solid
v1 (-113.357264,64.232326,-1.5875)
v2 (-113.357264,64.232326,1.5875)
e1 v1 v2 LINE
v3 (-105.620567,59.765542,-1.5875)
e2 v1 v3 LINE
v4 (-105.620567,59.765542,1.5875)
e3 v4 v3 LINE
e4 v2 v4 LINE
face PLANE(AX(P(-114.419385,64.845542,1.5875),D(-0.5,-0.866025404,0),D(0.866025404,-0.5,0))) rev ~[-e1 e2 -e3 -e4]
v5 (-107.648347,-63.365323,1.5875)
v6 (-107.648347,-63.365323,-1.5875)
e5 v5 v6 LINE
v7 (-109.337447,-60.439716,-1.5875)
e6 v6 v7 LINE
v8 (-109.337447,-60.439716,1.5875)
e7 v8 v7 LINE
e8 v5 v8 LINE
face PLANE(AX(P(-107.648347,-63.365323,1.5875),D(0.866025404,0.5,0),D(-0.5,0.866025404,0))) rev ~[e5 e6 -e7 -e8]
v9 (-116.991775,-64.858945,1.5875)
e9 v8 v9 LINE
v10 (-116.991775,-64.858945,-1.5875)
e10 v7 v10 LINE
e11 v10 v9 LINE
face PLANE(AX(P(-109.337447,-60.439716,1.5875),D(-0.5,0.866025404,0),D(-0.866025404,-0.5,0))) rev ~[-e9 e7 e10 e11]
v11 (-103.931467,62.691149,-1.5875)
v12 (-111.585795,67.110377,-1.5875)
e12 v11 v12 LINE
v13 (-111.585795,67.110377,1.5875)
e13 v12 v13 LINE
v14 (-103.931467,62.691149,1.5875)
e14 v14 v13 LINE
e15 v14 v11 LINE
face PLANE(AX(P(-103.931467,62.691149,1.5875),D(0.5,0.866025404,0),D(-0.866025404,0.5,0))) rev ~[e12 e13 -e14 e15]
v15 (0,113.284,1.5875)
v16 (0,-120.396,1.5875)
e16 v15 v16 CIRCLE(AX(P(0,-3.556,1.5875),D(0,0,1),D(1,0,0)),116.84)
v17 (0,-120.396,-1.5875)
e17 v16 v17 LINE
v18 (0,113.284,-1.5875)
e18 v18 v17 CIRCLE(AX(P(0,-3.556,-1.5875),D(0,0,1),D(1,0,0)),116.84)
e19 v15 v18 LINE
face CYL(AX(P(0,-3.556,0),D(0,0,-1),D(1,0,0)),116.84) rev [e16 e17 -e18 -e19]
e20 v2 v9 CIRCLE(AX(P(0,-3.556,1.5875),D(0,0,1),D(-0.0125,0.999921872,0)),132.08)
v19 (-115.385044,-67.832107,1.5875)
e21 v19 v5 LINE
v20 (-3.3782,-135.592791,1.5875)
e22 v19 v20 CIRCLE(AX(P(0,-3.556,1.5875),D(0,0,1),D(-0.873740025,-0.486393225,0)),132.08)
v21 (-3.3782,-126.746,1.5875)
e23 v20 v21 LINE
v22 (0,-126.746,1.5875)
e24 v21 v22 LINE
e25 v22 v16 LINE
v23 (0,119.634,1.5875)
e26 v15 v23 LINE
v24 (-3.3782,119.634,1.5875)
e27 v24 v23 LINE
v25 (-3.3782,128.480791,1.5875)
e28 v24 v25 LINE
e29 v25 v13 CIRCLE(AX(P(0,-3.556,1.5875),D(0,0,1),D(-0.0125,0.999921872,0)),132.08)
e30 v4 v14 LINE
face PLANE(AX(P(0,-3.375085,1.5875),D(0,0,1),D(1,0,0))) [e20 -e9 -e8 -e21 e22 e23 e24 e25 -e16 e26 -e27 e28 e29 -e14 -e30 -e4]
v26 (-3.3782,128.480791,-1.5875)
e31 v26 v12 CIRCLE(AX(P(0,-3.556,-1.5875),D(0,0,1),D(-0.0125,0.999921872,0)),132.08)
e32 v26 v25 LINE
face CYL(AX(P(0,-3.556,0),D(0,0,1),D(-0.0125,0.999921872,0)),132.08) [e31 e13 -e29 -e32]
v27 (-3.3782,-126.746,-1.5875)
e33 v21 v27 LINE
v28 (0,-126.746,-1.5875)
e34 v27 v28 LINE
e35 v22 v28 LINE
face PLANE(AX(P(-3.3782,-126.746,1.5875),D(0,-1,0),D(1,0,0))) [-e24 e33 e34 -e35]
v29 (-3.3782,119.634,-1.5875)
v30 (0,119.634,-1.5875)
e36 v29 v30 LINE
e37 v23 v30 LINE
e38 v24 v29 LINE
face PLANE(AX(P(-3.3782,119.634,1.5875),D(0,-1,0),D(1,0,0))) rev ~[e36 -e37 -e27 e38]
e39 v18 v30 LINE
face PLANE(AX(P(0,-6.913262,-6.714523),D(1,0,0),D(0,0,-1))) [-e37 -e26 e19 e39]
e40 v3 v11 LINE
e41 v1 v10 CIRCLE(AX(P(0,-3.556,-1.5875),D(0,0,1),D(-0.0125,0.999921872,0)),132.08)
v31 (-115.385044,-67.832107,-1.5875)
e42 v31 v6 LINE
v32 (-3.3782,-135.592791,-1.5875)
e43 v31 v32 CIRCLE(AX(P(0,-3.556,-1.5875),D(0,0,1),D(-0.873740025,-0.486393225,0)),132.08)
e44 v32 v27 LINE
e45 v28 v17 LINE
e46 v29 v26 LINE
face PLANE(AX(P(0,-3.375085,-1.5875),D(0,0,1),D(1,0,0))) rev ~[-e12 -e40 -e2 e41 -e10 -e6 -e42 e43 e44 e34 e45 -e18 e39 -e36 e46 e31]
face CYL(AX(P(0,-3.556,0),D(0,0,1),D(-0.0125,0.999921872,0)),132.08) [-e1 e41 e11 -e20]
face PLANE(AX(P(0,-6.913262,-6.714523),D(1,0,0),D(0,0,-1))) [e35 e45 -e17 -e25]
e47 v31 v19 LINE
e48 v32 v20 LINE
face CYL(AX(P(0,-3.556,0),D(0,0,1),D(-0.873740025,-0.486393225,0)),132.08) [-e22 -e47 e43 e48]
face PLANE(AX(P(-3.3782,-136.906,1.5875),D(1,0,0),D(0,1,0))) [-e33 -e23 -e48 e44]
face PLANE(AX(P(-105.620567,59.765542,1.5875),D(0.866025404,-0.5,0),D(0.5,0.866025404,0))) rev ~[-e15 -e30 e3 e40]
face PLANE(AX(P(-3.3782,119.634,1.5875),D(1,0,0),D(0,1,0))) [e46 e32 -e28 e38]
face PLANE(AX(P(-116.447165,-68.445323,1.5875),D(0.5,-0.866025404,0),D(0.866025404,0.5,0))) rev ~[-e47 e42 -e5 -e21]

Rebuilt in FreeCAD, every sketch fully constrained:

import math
import FreeCAD as App
import Part
import Sketcher

V = App.Vector
Q = App.Units.Quantity

doc = App.newDocument("Part")
body = doc.addObject("PartDesign::Body", "Body")

sketch1 = body.newObject("Sketcher::SketchObject", "Sketch")
sketch1.AttachmentSupport = (doc.getObject("XY_Plane"), [""])
sketch1.MapMode = "FlatFace"
sketch1.addGeometry([
    Part.ArcOfCircle(Part.Circle(V(0, -3.556, 0), V(0, 0, 1), 132.08), math.radians(90.716216), math.radians(207.670794)),
    Part.ArcOfCircle(Part.Circle(V(0.000013, -3.555993, 0), V(0, 0, 1), 132.080014), math.radians(-152.329206), math.radians(-151.612581)),
    Part.ArcOfCircle(Part.Circle(V(0.000026, -3.555986, 0), V(0, 0, 1), 132.08003), math.radians(-151.61258), math.radians(-150.896207)),
    Part.ArcOfCircle(Part.Circle(V(0, -3.556, 0), V(0, 0, 1), 132.08), math.radians(-150.896207), math.radians(-29.103793)),
    Part.ArcOfCircle(Part.Circle(V(-0.000007, -3.555996, 0), V(0, 0, 1), 132.080008), math.radians(-29.103793), math.radians(-28.387419)),
    Part.ArcOfCircle(Part.Circle(V(-0.00001, -3.555995, 0), V(0, 0, 1), 132.080012), math.radians(-28.387419), math.radians(-27.670794)),
    Part.ArcOfCircle(Part.Circle(V(0, -3.556, 0), V(0, 0, 1), 132.08), math.radians(-27.670794), math.radians(89.283784)),
    Part.ArcOfCircle(Part.Circle(V(0, -3.555979, 0), V(0, 0, 1), 132.079979), math.radians(89.283784), math.radians(90)),
    Part.ArcOfCircle(Part.Circle(V(0, -3.555979, 0), V(0, 0, 1), 132.079979), math.radians(90), math.radians(90.716216)),
    Part.Circle(V(0, -3.556, 0), V(0, 0, 1), 116.84),
], False)
sketch1.addConstraint([
    Sketcher.Constraint("Coincident", 0, 2, 1, 1),
    Sketcher.Constraint("Coincident", 1, 2, 2, 1),
    Sketcher.Constraint("Coincident", 2, 2, 3, 1),
    Sketcher.Constraint("Coincident", 3, 2, 4, 1),
    Sketcher.Constraint("Coincident", 4, 2, 5, 1),
    Sketcher.Constraint("Coincident", 5, 2, 6, 1),
    Sketcher.Constraint("Coincident", 6, 2, 7, 1),
    Sketcher.Constraint("Coincident", 7, 2, 8, 1),
    Sketcher.Constraint("Coincident", 8, 2, 0, 1),
    Sketcher.Constraint("Coincident", 3, 3, 0, 3),
    Sketcher.Constraint("Coincident", 4, 3, 0, 3),
    Sketcher.Constraint("Coincident", 5, 3, 4, 3),
    Sketcher.Constraint("Coincident", 6, 3, 0, 3),
    Sketcher.Constraint("Coincident", 8, 3, 7, 3),
    Sketcher.Constraint("Coincident", 9, 3, 0, 3),
    Sketcher.Constraint("PointOnObject", 0, 3, -2),
    Sketcher.Constraint("PointOnObject", 7, 3, -2),
    Sketcher.Constraint("PointOnObject", 7, 2, -2),
    Sketcher.Constraint("Diameter", 9, Q("9.2 in")),
    Sketcher.Constraint("Radius", 0, Q("5.2 in")),
    Sketcher.Constraint("DistanceY", 0, 3, -1, 1, Q("0.14 in")),
    Sketcher.Constraint("DistanceX", 8, 2, 6, 2, Q("0.13 in")),
    Sketcher.Constraint("DistanceX", -1, 1, 6, 2, Q("0.065 in")),
    Sketcher.Constraint("Radius", 2, 132.08003),
    Sketcher.Constraint("Radius", 7, 132.079979),
    Sketcher.Constraint("Radius", 1, 132.080014),
    Sketcher.Constraint("DistanceY", 2, 2, 0, 2, 2.906099),
    Sketcher.Constraint("DistanceY", 3, 2, 5, 2, 2.906099),
    Sketcher.Constraint("DistanceX", 0, 2, -1, 1, 116.974071),
    Sketcher.Constraint("DistanceX", -1, 1, 5, 2, 116.974071),
    Sketcher.Constraint("DistanceY", 1, 2, 5, 3, 62.794939),
    Sketcher.Constraint("DistanceY", 3, 2, 2, 3, 64.242832),
    Sketcher.Constraint("DistanceX", 2, 3, 4, 2, 116.197748),
])
pad1 = body.newObject("PartDesign::Pad", "Pad")
pad1.Profile = sketch1
pad1.Length = Q("0.125 in")
pad1.Midplane = True

sketch2 = body.newObject("Sketcher::SketchObject", "Sketch001")
sketch2.AttachmentSupport = (doc.getObject("YZ_Plane"), [""])
sketch2.MapMode = "FlatFace"
sketch2.addGeometry([
    Part.LineSegment(V(193, 109, 0), V(-206, 109, 0)),
    Part.LineSegment(V(-206, 109, 0), V(-206, -123, 0)),
    Part.LineSegment(V(-206, -123, 0), V(193, -123, 0)),
    Part.LineSegment(V(193, -123, 0), V(193, 109, 0)),
], False)
sketch2.addConstraint([
    Sketcher.Constraint("Coincident", 0, 2, 1, 1),
    Sketcher.Constraint("Coincident", 1, 2, 2, 1),
    Sketcher.Constraint("Coincident", 2, 2, 3, 1),
    Sketcher.Constraint("Coincident", 3, 2, 0, 1),
    Sketcher.Constraint("Horizontal", 0),
    Sketcher.Constraint("Vertical", 1),
    Sketcher.Constraint("Horizontal", 2),
    Sketcher.Constraint("Vertical", 3),
    Sketcher.Constraint("DistanceX", 0, 2, 0, 1, 398.954584),
    Sketcher.Constraint("DistanceY", 1, 2, 1, 1, 232.210592),
    Sketcher.Constraint("DistanceY", 1, 2, -1, 1, 122.819819),
    Sketcher.Constraint("DistanceX", -1, 1, 2, 2, 192.56403),
])
pocket1 = body.newObject("PartDesign::Pocket", "Pocket")
pocket1.Profile = sketch2
pocket1.Type = "ThroughAll"
pocket1.Reversed = True

sketch3 = body.newObject("Sketcher::SketchObject", "Sketch002")
sketch3.AttachmentSupport = (doc.getObject("XY_Plane"), [""])
sketch3.MapMode = "FlatFace"
sketch3.AttachmentOffset = App.Placement(V(0, 0, 0.0625 * 25.4), App.Rotation())
sketch3.addGeometry([
    Part.LineSegment(V(-3.4, 129.8, 0), V(-3.4, 119.6, 0)),
    Part.LineSegment(V(-3.4, 119.6, 0), V(0, 119.6, 0)),
    Part.LineSegment(V(0, 119.6, 0), V(0, 129.8, 0)),
    Part.LineSegment(V(0, 129.8, 0), V(-3.4, 129.8, 0)),
    Part.LineSegment(V(-105.6, 59.8, 0), V(-103.9, 62.7, 0)),
    Part.LineSegment(V(-103.9, 62.7, 0), V(-112.7, 67.8, 0)),
    Part.LineSegment(V(-112.7, 67.8, 0), V(-114.4, 64.8, 0)),
    Part.LineSegment(V(-114.4, 64.8, 0), V(-105.6, 59.8, 0)),
    Part.LineSegment(V(-3.4, -126.7, 0), V(-3.4, -136.9, 0)),
    Part.LineSegment(V(-3.4, -136.9, 0), V(0, -136.9, 0)),
    Part.LineSegment(V(0, -136.9, 0), V(0, -126.7, 0)),
    Part.LineSegment(V(0, -126.7, 0), V(-3.4, -126.7, 0)),
    Part.LineSegment(V(-107.6, -63.4, 0), V(-109.3, -60.4, 0)),
    Part.LineSegment(V(-109.3, -60.4, 0), V(-118.1, -65.5, 0)),
    Part.LineSegment(V(-118.1, -65.5, 0), V(-116.4, -68.4, 0)),
    Part.LineSegment(V(-116.4, -68.4, 0), V(-107.6, -63.4, 0)),
], False)
sketch3.addConstraint([
    Sketcher.Constraint("Coincident", 0, 2, 1, 1),
    Sketcher.Constraint("Coincident", 1, 2, 2, 1),
    Sketcher.Constraint("Coincident", 2, 2, 3, 1),
    Sketcher.Constraint("Coincident", 3, 2, 0, 1),
    Sketcher.Constraint("Coincident", 4, 2, 5, 1),
    Sketcher.Constraint("Coincident", 5, 2, 6, 1),
    Sketcher.Constraint("Coincident", 6, 2, 7, 1),
    Sketcher.Constraint("Coincident", 7, 2, 4, 1),
    Sketcher.Constraint("Coincident", 8, 2, 9, 1),
    Sketcher.Constraint("Coincident", 9, 2, 10, 1),
    Sketcher.Constraint("Coincident", 10, 2, 11, 1),
    Sketcher.Constraint("Coincident", 11, 2, 8, 1),
    Sketcher.Constraint("Coincident", 12, 2, 13, 1),
    Sketcher.Constraint("Coincident", 13, 2, 14, 1),
    Sketcher.Constraint("Coincident", 14, 2, 15, 1),
    Sketcher.Constraint("Coincident", 15, 2, 12, 1),
    Sketcher.Constraint("Vertical", 0),
    Sketcher.Constraint("Horizontal", 1),
    Sketcher.Constraint("Vertical", 2),
    Sketcher.Constraint("Horizontal", 3),
    Sketcher.Constraint("Vertical", 8),
    Sketcher.Constraint("Horizontal", 9),
    Sketcher.Constraint("Vertical", 10),
    Sketcher.Constraint("Horizontal", 11),
    Sketcher.Constraint("PointOnObject", 1, 2, -2),
    Sketcher.Constraint("PointOnObject", 9, 2, -2),
    Sketcher.Constraint("Perpendicular", 4, 5),
    Sketcher.Constraint("Perpendicular", 5, 6),
    Sketcher.Constraint("Perpendicular", 6, 7),
    Sketcher.Constraint("Perpendicular", 12, 13),
    Sketcher.Constraint("Perpendicular", 13, 14),
    Sketcher.Constraint("Perpendicular", 14, 15),
    Sketcher.Constraint("Vertical", 3, 2, 8, 2),
    Sketcher.Constraint("Equal", 2, 8),
    Sketcher.Constraint("Equal", 6, 12),
    Sketcher.Constraint("Equal", 7, 13),
    Sketcher.Constraint("DistanceY", 0, 2, 0, 1, Q("0.4 in")),
    Sketcher.Constraint("Angle", 4, Q("60 deg")),
    Sketcher.Constraint("Angle", 12, Q("120 deg")),
    Sketcher.Constraint("Distance", 5, Q("0.4 in")),
    Sketcher.Constraint("DistanceY", 8, 2, 0, 2, Q("10.1 in")),
    Sketcher.Constraint("DistanceX", 1, 1, 1, 2, Q("0.133 in")),
    Sketcher.Constraint("DistanceY", -1, 1, 0, 2, Q("4.71 in")),
    Sketcher.Constraint("Distance", 4, Q("0.133 in")),
    Sketcher.Constraint("DistanceX", 5, 2, -1, 1, Q("4.4382002 in")),
    Sketcher.Constraint("DistanceX", 13, 2, 7, 2, 12.515698),
    Sketcher.Constraint("DistanceY", -1, 1, 4, 2, 62.691149),
    Sketcher.Constraint("DistanceY", 12, 2, -1, 1, 60.439716),
])
pocket2 = body.newObject("PartDesign::Pocket", "Pocket001")
pocket2.Profile = sketch3
pocket2.Type = "ThroughAll"

doc.recompute()
